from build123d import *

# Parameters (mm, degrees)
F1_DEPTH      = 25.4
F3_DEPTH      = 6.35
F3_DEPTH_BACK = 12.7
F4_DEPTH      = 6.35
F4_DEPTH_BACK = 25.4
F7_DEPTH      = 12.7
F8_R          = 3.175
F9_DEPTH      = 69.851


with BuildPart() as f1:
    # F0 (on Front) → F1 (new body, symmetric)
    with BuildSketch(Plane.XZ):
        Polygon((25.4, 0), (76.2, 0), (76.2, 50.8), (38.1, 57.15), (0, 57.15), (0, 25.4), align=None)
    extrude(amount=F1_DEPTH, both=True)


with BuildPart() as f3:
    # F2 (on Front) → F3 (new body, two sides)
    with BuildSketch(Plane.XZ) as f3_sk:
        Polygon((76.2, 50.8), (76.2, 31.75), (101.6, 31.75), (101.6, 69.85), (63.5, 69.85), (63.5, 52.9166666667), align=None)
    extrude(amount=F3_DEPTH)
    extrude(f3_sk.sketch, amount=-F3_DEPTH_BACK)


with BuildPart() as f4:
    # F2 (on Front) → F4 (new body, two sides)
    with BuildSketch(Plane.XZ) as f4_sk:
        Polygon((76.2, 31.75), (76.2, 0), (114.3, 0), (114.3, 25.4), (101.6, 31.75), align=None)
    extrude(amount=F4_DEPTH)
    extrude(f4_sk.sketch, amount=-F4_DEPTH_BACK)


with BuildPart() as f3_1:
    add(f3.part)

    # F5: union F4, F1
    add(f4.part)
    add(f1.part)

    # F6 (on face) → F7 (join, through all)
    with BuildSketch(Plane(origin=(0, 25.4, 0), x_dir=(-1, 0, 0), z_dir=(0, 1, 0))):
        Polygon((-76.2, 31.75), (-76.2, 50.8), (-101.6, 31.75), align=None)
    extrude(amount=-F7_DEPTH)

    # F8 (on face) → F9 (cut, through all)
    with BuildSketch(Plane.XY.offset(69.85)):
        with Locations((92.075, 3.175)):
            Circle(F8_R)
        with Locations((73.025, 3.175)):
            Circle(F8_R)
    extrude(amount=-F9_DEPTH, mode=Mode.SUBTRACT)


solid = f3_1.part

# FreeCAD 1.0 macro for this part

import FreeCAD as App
import Part
import Sketcher
Q = App.Units.Quantity

doc = App.newDocument("Part")
body = doc.addObject("PartDesign::Body", "Body")

# Sketch on XZ plane
sketch1 = doc.addObject("Sketcher::SketchObject", "Sketch")
body.addObject(sketch1)
sketch1.AttachmentSupport = (doc.XZ_Plane, [""])
sketch1.MapMode = "FlatFace"
sketch1.addGeometry([
    Part.LineSegment(App.Vector(25, 0, 0), App.Vector(76, 0, 0)),  # 0
    Part.LineSegment(App.Vector(76, 0, 0), App.Vector(76, 51, 0)),  # 1
    Part.LineSegment(App.Vector(76, 51, 0), App.Vector(38, 57, 0)),  # 2
    Part.LineSegment(App.Vector(38, 57, 0), App.Vector(0, 57, 0)),  # 3
    Part.LineSegment(App.Vector(0, 57, 0), App.Vector(0, 25, 0)),  # 4
    Part.LineSegment(App.Vector(0, 25, 0), App.Vector(25, 0, 0)),  # 5
], False)
sketch1.addConstraint([
    Sketcher.Constraint("Coincident", 0, 2, 1, 1),
    Sketcher.Constraint("Coincident", 1, 2, 2, 1),
    Sketcher.Constraint("Coincident", 2, 2, 3, 1),
    Sketcher.Constraint("Coincident", 3, 2, 4, 1),
    Sketcher.Constraint("Coincident", 4, 2, 5, 1),
    Sketcher.Constraint("Coincident", 5, 2, 0, 1),
    Sketcher.Constraint("Horizontal", 0),
    Sketcher.Constraint("Vertical", 1),
    Sketcher.Constraint("Horizontal", 3),
    Sketcher.Constraint("Vertical", 4),
    Sketcher.Constraint("PointOnObject", 0, 2, -1),
    Sketcher.Constraint("PointOnObject", 3, 2, -2),
    Sketcher.Constraint("Equal", 0, 1),
    Sketcher.Constraint("DistanceX", 0, 1, 0, 2, Q("2 in")),
    Sketcher.Constraint("DistanceX", 3, 2, 3, 1, Q("1.5 in")),
    Sketcher.Constraint("DistanceX", -1, 1, 0, 2, Q("3 in")),
    Sketcher.Constraint("DistanceY", -1, 1, 4, 2, Q("1 in")),
    Sketcher.Constraint("DistanceY", 4, 2, 4, 1, Q("1.25 in")),
])
pad1 = doc.addObject("PartDesign::Pad", "Pad")
body.addObject(pad1)
pad1.Profile = sketch1
pad1.Length = Q("2 in")
pad1.Midplane = True
body2 = doc.addObject("PartDesign::Body", "Body001")

# Sketch on XZ plane
sketch2 = doc.addObject("Sketcher::SketchObject", "Sketch001")
body2.addObject(sketch2)
sketch2.AttachmentSupport = (doc.getObject("XZ_Plane001"), [""])
sketch2.MapMode = "FlatFace"
sketch2.addGeometry([
    Part.LineSegment(App.Vector(76, 51, 0), App.Vector(76, 32, 0)),  # 0
    Part.LineSegment(App.Vector(76, 32, 0), App.Vector(102, 32, 0)),  # 1
    Part.LineSegment(App.Vector(102, 32, 0), App.Vector(102, 70, 0)),  # 2
    Part.LineSegment(App.Vector(102, 70, 0), App.Vector(64, 70, 0)),  # 3
    Part.LineSegment(App.Vector(64, 70, 0), App.Vector(64, 53, 0)),  # 4
    Part.LineSegment(App.Vector(64, 53, 0), App.Vector(76, 51, 0)),  # 5
], False)
sketch2.addConstraint([
    Sketcher.Constraint("Coincident", 0, 2, 1, 1),
    Sketcher.Constraint("Coincident", 1, 2, 2, 1),
    Sketcher.Constraint("Coincident", 2, 2, 3, 1),
    Sketcher.Constraint("Coincident", 3, 2, 4, 1),
    Sketcher.Constraint("Coincident", 4, 2, 5, 1),
    Sketcher.Constraint("Coincident", 5, 2, 0, 1),
    Sketcher.Constraint("Vertical", 0),
    Sketcher.Constraint("Horizontal", 1),
    Sketcher.Constraint("Vertical", 2),
    Sketcher.Constraint("Horizontal", 3),
    Sketcher.Constraint("Vertical", 4),
    Sketcher.Constraint("Equal", 3, 2),
    Sketcher.Constraint("DistanceX", 1, 1, 1, 2, Q("1 in")),
    Sketcher.Constraint("DistanceX", 3, 2, 3, 1, Q("1.5 in")),
    Sketcher.Constraint("DistanceX", -1, 1, 0, 2, Q("3 in")),
    Sketcher.Constraint("DistanceY", -1, 1, 5, 2, Q("2 in")),
    Sketcher.Constraint("DistanceY", 0, 2, 0, 1, Q("0.75 in")),
    Sketcher.Constraint("Distance", 5, Q("12.875181 mm")),
])
pad2 = doc.addObject("PartDesign::Pad", "Pad001")
body2.addObject(pad2)
pad2.Profile = sketch2
pad2.Type = "TwoLengths"
pad2.Length = Q("0.25 in")
pad2.Length2 = Q("0.5 in")
body3 = doc.addObject("PartDesign::Body", "Body002")

# Sketch on XZ plane
sketch3 = doc.addObject("Sketcher::SketchObject", "Sketch002")
body3.addObject(sketch3)
sketch3.AttachmentSupport = (doc.getObject("XZ_Plane002"), [""])
sketch3.MapMode = "FlatFace"
sketch3.addGeometry([
    Part.LineSegment(App.Vector(76, 32, 0), App.Vector(76, 0, 0)),  # 0
    Part.LineSegment(App.Vector(76, 0, 0), App.Vector(114, 0, 0)),  # 1
    Part.LineSegment(App.Vector(114, 0, 0), App.Vector(114, 25, 0)),  # 2
    Part.LineSegment(App.Vector(114, 25, 0), App.Vector(102, 32, 0)),  # 3
    Part.LineSegment(App.Vector(102, 32, 0), App.Vector(76, 32, 0)),  # 4
], False)
sketch3.addConstraint([
    Sketcher.Constraint("Coincident", 0, 2, 1, 1),
    Sketcher.Constraint("Coincident", 1, 2, 2, 1),
    Sketcher.Constraint("Coincident", 2, 2, 3, 1),
    Sketcher.Constraint("Coincident", 3, 2, 4, 1),
    Sketcher.Constraint("Coincident", 4, 2, 0, 1),
    Sketcher.Constraint("Vertical", 0),
    Sketcher.Constraint("Horizontal", 1),
    Sketcher.Constraint("Vertical", 2),
    Sketcher.Constraint("Horizontal", 4),
    Sketcher.Constraint("PointOnObject", 0, 2, -1),
    Sketcher.Constraint("Equal", 4, 2),
    Sketcher.Constraint("DistanceX", 4, 2, 4, 1, Q("1 in")),
    Sketcher.Constraint("DistanceX", 1, 1, 1, 2, Q("1.5 in")),
    Sketcher.Constraint("DistanceX", -1, 1, 0, 2, Q("3 in")),
    Sketcher.Constraint("DistanceY", 0, 2, 0, 1, Q("1.25 in")),
])
pad3 = doc.addObject("PartDesign::Pad", "Pad002")
body3.addObject(pad3)
pad3.Profile = sketch3
pad3.Type = "TwoLengths"
pad3.Length = Q("0.25 in")
pad3.Length2 = Q("1 in")
doc.recompute()

boolean = doc.addObject("PartDesign::Boolean", "Boolean")
body2.addObject(boolean)
boolean.Type = "Fuse"
boolean.addObjects([body3])
doc.recompute()

boolean2 = doc.addObject("PartDesign::Boolean", "Boolean001")
body2.addObject(boolean2)
boolean2.Type = "Fuse"
boolean2.addObjects([body])

# Sketch on XZ plane
sketch4 = doc.addObject("Sketcher::SketchObject", "Sketch003")
body2.addObject(sketch4)
sketch4.AttachmentSupport = (doc.getObject("XZ_Plane001"), [""])
sketch4.MapMode = "FlatFace"
sketch4.AttachmentOffset = App.Placement(App.Vector(0, 0, -1 * 25.4), App.Rotation())
sketch4.addGeometry([
    Part.LineSegment(App.Vector(76, 32, 0), App.Vector(76, 51, 0)),
    Part.LineSegment(App.Vector(76, 51, 0), App.Vector(102, 32, 0)),
    Part.LineSegment(App.Vector(102, 32, 0), App.Vector(76, 32, 0)),
], False)
sketch4.addConstraint([
    Sketcher.Constraint("Coincident", 0, 2, 1, 1),
    Sketcher.Constraint("Coincident", 1, 2, 2, 1),
    Sketcher.Constraint("Coincident", 2, 2, 0, 1),
    Sketcher.Constraint("Vertical", 0),
    Sketcher.Constraint("Horizontal", 2),
    Sketcher.Constraint("DistanceX", 2, 2, 2, 1, Q("1 in")),
    Sketcher.Constraint("DistanceX", -1, 1, 0, 2, Q("3 in")),
    Sketcher.Constraint("DistanceY", -1, 1, 0, 2, Q("2 in")),
    Sketcher.Constraint("DistanceY", 0, 1, 0, 2, Q("0.75 in")),
])
pad4 = doc.addObject("PartDesign::Pad", "Pad003")
body2.addObject(pad4)
pad4.Profile = sketch4
pad4.Type = "UpToLast"

# Sketch on XY plane
sketch5 = doc.addObject("Sketcher::SketchObject", "Sketch004")
body2.addObject(sketch5)
sketch5.AttachmentSupport = (doc.getObject("XY_Plane001"), [""])
sketch5.MapMode = "FlatFace"
sketch5.AttachmentOffset = App.Placement(App.Vector(0, 0, 2.75 * 25.4), App.Rotation())
sketch5.addGeometry([
    Part.Circle(App.Vector(92.1, 3.2, 0), App.Vector(0, 0, 1), 3.2),
    Part.Circle(App.Vector(73, 3.2, 0), App.Vector(0, 0, 1), 3.2),
], False)
sketch5.addConstraint([
    Sketcher.Constraint("Equal", 0, 1),
    Sketcher.Constraint("Horizontal", 0, 3, 1, 3),
    Sketcher.Constraint("Diameter", 0, Q("0.25 in")),
    Sketcher.Constraint("DistanceX", 1, 3, 0, 3, Q("0.75 in")),
    Sketcher.Constraint("DistanceX", -1, 1, 0, 3, Q("3.625 in")),
    Sketcher.Constraint("DistanceY", -1, 1, 0, 3, Q("0.125 in")),
])
pocket1 = doc.addObject("PartDesign::Pocket", "Pocket")
body2.addObject(pocket1)
pocket1.Profile = sketch5
pocket1.Type = "ThroughAll"

doc.recompute()
